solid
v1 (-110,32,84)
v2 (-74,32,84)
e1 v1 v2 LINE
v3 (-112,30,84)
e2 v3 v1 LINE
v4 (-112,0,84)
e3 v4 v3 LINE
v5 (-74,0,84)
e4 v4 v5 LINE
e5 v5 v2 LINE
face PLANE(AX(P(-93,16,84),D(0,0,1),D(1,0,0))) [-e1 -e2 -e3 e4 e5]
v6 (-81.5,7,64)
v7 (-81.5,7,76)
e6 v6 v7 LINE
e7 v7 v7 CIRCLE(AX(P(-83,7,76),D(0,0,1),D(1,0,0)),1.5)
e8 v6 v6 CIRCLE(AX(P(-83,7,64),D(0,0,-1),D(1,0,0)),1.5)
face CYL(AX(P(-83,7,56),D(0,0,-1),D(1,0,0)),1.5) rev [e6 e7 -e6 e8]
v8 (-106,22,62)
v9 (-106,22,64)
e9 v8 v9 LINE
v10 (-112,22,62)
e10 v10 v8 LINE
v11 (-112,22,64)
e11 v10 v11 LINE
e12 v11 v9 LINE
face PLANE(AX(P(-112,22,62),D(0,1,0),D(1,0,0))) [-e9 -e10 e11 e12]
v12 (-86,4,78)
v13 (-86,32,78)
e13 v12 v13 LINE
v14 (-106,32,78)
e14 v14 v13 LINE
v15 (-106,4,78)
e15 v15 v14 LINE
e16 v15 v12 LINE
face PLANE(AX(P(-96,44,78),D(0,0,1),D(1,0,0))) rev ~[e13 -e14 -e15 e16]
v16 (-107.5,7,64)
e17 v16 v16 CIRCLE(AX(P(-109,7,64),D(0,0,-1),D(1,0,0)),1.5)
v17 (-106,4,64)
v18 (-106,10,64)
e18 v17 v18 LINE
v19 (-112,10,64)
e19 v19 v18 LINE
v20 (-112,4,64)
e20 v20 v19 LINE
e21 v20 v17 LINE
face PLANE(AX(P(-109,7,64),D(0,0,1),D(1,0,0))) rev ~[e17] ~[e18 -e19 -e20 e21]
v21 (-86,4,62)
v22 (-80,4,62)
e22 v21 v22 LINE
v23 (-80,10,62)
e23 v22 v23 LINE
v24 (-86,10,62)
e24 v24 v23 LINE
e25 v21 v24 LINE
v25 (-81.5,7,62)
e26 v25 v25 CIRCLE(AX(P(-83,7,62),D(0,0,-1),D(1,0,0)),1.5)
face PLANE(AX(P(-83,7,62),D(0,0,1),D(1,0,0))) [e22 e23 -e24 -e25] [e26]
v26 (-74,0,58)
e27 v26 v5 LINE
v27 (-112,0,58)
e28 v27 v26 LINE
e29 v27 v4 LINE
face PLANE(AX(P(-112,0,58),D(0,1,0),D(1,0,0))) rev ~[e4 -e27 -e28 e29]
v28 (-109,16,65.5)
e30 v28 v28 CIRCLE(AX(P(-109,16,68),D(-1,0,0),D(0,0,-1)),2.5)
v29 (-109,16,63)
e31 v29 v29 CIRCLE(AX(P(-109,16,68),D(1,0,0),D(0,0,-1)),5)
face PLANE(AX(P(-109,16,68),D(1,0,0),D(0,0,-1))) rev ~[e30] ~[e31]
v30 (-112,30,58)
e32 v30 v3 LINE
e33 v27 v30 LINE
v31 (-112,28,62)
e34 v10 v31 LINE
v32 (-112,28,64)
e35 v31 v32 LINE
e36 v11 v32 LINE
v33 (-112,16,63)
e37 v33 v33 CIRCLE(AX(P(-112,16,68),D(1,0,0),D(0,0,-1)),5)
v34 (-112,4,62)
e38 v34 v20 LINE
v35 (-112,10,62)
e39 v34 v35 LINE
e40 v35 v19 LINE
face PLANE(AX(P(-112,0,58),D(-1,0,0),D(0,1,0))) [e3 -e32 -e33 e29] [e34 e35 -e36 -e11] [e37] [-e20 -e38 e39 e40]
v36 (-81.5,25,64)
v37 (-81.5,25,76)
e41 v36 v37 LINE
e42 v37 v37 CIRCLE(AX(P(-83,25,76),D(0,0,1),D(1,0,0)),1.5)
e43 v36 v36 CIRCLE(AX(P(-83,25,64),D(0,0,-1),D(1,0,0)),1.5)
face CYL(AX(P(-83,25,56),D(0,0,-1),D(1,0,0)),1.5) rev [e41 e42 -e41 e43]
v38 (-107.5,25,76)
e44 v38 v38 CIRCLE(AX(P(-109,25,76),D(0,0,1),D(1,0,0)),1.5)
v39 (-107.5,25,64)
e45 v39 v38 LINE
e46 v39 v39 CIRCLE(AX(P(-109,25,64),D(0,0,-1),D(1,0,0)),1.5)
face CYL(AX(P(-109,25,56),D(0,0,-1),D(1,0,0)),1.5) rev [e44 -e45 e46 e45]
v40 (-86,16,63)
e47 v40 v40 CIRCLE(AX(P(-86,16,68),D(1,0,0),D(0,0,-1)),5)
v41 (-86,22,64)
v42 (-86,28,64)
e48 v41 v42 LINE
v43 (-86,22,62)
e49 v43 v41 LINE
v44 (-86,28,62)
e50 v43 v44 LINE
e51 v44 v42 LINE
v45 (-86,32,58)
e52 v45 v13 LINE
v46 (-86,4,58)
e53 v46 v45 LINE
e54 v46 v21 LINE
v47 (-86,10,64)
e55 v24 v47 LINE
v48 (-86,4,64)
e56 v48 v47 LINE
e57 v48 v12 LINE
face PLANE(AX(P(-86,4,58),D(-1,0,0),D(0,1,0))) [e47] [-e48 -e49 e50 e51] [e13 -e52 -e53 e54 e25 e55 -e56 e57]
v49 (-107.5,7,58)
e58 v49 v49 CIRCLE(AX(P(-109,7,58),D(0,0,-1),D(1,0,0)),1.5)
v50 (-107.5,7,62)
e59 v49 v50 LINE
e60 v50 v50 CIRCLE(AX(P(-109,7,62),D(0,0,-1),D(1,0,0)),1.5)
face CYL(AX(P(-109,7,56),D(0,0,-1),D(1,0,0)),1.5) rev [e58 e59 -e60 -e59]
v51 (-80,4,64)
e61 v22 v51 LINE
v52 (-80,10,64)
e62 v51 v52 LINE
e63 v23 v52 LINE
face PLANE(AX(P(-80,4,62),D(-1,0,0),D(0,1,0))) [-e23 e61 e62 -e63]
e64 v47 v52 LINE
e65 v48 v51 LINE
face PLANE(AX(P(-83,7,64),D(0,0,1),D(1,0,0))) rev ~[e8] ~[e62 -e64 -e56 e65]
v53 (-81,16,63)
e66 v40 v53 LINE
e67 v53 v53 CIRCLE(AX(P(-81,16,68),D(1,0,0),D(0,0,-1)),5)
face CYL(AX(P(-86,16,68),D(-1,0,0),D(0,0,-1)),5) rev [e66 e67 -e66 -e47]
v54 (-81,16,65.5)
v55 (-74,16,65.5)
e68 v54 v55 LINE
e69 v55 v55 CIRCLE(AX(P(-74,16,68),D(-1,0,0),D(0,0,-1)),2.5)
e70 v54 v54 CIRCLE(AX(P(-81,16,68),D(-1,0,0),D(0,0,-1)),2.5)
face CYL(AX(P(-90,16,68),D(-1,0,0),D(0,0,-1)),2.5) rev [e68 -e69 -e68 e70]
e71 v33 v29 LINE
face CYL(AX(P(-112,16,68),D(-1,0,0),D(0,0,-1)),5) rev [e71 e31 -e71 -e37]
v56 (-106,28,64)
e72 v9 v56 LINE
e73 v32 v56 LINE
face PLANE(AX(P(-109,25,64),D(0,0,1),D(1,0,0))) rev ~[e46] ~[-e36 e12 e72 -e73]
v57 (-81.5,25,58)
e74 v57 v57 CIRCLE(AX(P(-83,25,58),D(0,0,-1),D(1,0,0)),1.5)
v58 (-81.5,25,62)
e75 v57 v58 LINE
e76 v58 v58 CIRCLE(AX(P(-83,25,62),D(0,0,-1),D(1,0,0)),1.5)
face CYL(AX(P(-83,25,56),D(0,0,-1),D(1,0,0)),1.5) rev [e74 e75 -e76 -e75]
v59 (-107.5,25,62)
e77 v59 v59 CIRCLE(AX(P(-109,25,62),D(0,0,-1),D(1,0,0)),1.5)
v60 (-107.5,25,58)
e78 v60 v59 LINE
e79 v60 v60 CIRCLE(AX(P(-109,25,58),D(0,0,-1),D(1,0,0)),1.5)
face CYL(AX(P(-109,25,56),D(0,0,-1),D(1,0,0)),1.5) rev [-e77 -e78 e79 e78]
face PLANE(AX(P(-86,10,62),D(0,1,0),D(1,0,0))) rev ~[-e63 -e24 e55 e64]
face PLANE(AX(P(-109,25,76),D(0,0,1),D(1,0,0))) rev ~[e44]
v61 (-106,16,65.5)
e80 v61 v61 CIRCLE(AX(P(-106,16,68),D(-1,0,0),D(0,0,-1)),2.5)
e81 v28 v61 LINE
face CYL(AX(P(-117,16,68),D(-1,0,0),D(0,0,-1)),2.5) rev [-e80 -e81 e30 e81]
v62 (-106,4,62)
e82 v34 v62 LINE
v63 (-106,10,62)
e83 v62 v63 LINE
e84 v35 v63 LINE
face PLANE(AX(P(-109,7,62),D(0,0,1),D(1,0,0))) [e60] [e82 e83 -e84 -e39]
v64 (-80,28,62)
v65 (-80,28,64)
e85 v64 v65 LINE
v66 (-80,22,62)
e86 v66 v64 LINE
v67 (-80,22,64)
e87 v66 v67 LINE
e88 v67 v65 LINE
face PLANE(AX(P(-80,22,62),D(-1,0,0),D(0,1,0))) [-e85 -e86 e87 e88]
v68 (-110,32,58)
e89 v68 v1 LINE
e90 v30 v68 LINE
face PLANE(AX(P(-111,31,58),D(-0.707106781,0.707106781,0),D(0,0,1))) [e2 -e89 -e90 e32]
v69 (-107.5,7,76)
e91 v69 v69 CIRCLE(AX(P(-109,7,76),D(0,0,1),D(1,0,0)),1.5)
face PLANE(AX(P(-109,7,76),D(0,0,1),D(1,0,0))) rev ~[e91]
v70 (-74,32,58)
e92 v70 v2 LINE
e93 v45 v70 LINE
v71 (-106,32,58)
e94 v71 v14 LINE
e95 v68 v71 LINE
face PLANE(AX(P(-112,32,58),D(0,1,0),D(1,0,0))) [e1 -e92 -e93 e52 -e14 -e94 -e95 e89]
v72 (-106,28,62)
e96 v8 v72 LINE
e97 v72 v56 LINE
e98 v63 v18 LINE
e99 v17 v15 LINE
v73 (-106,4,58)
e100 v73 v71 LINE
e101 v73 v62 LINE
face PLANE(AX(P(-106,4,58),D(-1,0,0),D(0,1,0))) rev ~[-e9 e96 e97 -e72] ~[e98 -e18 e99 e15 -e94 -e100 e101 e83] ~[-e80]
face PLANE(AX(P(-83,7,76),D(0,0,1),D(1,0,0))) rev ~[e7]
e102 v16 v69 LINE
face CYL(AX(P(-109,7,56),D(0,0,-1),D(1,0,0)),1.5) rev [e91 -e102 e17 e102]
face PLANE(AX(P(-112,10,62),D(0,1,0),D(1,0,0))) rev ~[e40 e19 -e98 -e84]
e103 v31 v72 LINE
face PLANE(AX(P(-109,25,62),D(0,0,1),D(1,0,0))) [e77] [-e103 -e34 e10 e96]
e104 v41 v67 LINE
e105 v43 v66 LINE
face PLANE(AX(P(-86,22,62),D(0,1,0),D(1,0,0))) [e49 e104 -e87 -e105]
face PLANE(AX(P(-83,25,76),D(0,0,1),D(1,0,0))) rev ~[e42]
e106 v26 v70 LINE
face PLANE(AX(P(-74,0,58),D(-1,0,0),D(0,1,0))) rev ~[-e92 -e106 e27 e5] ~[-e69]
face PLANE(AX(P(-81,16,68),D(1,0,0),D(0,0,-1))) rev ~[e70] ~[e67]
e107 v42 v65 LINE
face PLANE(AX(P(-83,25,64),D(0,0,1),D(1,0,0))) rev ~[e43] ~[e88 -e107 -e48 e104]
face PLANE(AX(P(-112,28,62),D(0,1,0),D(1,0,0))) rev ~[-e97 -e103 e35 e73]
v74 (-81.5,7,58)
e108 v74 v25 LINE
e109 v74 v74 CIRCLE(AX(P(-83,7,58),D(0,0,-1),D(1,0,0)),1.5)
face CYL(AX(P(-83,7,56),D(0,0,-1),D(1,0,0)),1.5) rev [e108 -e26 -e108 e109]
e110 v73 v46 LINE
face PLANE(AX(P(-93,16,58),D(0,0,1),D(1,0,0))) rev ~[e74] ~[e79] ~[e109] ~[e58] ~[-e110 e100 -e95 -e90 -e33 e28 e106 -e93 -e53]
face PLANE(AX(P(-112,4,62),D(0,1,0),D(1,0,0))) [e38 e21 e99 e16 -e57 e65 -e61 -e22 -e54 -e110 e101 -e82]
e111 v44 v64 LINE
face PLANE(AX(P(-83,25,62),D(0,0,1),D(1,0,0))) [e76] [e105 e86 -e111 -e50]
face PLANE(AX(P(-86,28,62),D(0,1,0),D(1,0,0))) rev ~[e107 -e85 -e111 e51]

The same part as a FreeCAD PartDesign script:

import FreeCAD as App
import Part
import Sketcher
Q = App.Units.Quantity


def edges_at(feature, points):
    """Names of the edges that pass closest to the given points."""
    edges = feature.Shape.Edges
    near = lambda p: min(range(len(edges)), key=lambda i: edges[i].distToShape(Part.Vertex(*p))[0])
    return sorted({f"Edge{near(p) + 1}" for p in points})

doc = App.newDocument("Part")
body = doc.addObject("PartDesign::Body", "Body")

sketch1 = body.newObject("Sketcher::SketchObject", "Sketch")
sketch1.AttachmentSupport = (doc.getObject("YZ_Plane"), [""])
sketch1.MapMode = "FlatFace"
sketch1.AttachmentOffset = App.Placement(App.Vector(0, 0, -86), App.Rotation())
sketch1.addGeometry(Part.Circle(App.Vector(16, 68, 0), App.Vector(0, 0, 1), 5), False)
sketch1.addConstraint([
    Sketcher.Constraint("Diameter", 0, Q("10 mm")),
    Sketcher.Constraint("DistanceX", -1, 1, 0, 3, Q("16 mm")),
    Sketcher.Constraint("DistanceY", -1, 1, 0, 3, Q("68 mm")),
])
pad1 = body.newObject("PartDesign::Pad", "Pad")
pad1.Profile = sketch1
pad1.Length = 5
body2 = doc.addObject("PartDesign::Body", "Body001")

sketch2 = body2.newObject("Sketcher::SketchObject", "Sketch001")
sketch2.AttachmentSupport = (doc.getObject("YZ_Plane001"), [""])
sketch2.MapMode = "FlatFace"
sketch2.AttachmentOffset = App.Placement(App.Vector(0, 0, -90), App.Rotation())
sketch2.addGeometry(Part.Circle(App.Vector(16, 68, 0), App.Vector(0, 0, 1), 2.5), False)
sketch2.addConstraint([
    Sketcher.Constraint("Diameter", 0, Q("5 mm")),
    Sketcher.Constraint("DistanceX", -1, 1, 0, 3, Q("16 mm")),
    Sketcher.Constraint("DistanceY", -1, 1, 0, 3, Q("68 mm")),
])
pad2 = body2.newObject("PartDesign::Pad", "Pad001")
pad2.Profile = sketch2
pad2.Length = 40
body3 = doc.addObject("PartDesign::Body", "Body002")

sketch3 = body3.newObject("Sketcher::SketchObject", "Sketch002")
sketch3.AttachmentSupport = (doc.getObject("YZ_Plane002"), [""])
sketch3.MapMode = "FlatFace"
sketch3.AttachmentOffset = App.Placement(App.Vector(0, 0, -112), App.Rotation())
sketch3.addGeometry(Part.Circle(App.Vector(16, 66, 0), App.Vector(0, 0, 1), 5), False)
sketch3.addConstraint([
    Sketcher.Constraint("Diameter", 0, Q("10 mm")),
    Sketcher.Constraint("DistanceX", -1, 1, 0, 3, Q("16 mm")),
    Sketcher.Constraint("DistanceY", -1, 1, 0, 3, Q("66 mm")),
])
pad3 = body3.newObject("PartDesign::Pad", "Pad002")
pad3.Profile = sketch3
pad3.Length = 3
body4 = doc.addObject("PartDesign::Body", "Body003")

sketch4 = body4.newObject("Sketcher::SketchObject", "Sketch003")
sketch4.AttachmentSupport = (doc.getObject("YZ_Plane003"), [""])
sketch4.MapMode = "FlatFace"
sketch4.AttachmentOffset = App.Placement(App.Vector(0, 0, -117), App.Rotation())
sketch4.addGeometry(Part.Circle(App.Vector(16, 66, 0), App.Vector(0, 0, 1), 2.5), False)
sketch4.addConstraint([
    Sketcher.Constraint("Diameter", 0, Q("5 mm")),
    Sketcher.Constraint("DistanceX", -1, 1, 0, 3, Q("16 mm")),
    Sketcher.Constraint("DistanceY", -1, 1, 0, 3, Q("66 mm")),
])
pad4 = body4.newObject("PartDesign::Pad", "Pad003")
pad4.Profile = sketch4
pad4.Length = 20
body5 = doc.addObject("PartDesign::Body", "Body004")

sketch5 = body5.newObject("Sketcher::SketchObject", "Sketch004")
sketch5.AttachmentSupport = (doc.getObject("XY_Plane004"), [""])
sketch5.MapMode = "FlatFace"
sketch5.AttachmentOffset = App.Placement(App.Vector(0, 0, 54), App.Rotation())
sketch5.addGeometry(Part.Circle(App.Vector(-83, 25, 0), App.Vector(0, 0, 1), 1.5), False)
sketch5.addConstraint([
    Sketcher.Constraint("Diameter", 0, Q("3 mm")),
    Sketcher.Constraint("DistanceX", 0, 3, -1, 1, Q("83 mm")),
    Sketcher.Constraint("DistanceY", -1, 1, 0, 3, Q("25 mm")),
])
pad5 = body5.newObject("PartDesign::Pad", "Pad004")
pad5.Profile = sketch5
pad5.Length = 20
body6 = doc.addObject("PartDesign::Body", "Body005")

sketch6 = body6.newObject("Sketcher::SketchObject", "Sketch005")
sketch6.AttachmentSupport = (doc.getObject("XY_Plane005"), [""])
sketch6.MapMode = "FlatFace"
sketch6.AttachmentOffset = App.Placement(App.Vector(0, 0, 54), App.Rotation())
sketch6.addGeometry(Part.Circle(App.Vector(-109, 7, 0), App.Vector(0, 0, 1), 1.5), False)
sketch6.addConstraint([
    Sketcher.Constraint("Diameter", 0, Q("3 mm")),
    Sketcher.Constraint("DistanceX", 0, 3, -1, 1, Q("109 mm")),
    Sketcher.Constraint("DistanceY", -1, 1, 0, 3, Q("7 mm")),
])
pad6 = body6.newObject("PartDesign::Pad", "Pad005")
pad6.Profile = sketch6
pad6.Length = 20
body7 = doc.addObject("PartDesign::Body", "Body006")

sketch7 = body7.newObject("Sketcher::SketchObject", "Sketch006")
sketch7.AttachmentSupport = (doc.getObject("XY_Plane006"), [""])
sketch7.MapMode = "FlatFace"
sketch7.AttachmentOffset = App.Placement(App.Vector(0, 0, 54), App.Rotation())
sketch7.addGeometry(Part.Circle(App.Vector(-109, 25, 0), App.Vector(0, 0, 1), 1.5), False)
sketch7.addConstraint([
    Sketcher.Constraint("Diameter", 0, Q("3 mm")),
    Sketcher.Constraint("DistanceX", 0, 3, -1, 1, Q("109 mm")),
    Sketcher.Constraint("DistanceY", -1, 1, 0, 3, Q("25 mm")),
])
pad7 = body7.newObject("PartDesign::Pad", "Pad006")
pad7.Profile = sketch7
pad7.Length = 20
body8 = doc.addObject("PartDesign::Body", "Body007")
body8.AllowCompound = True

sketch8 = body8.newObject("Sketcher::SketchObject", "Sketch007")
sketch8.AttachmentSupport = (doc.getObject("XY_Plane007"), [""])
sketch8.MapMode = "FlatFace"
sketch8.AttachmentOffset = App.Placement(App.Vector(0, 0, 54), App.Rotation())
sketch8.addGeometry(Part.Circle(App.Vector(-83, 7, 0), App.Vector(0, 0, 1), 1.5), False)
sketch8.addConstraint([
    Sketcher.Constraint("Diameter", 0, Q("3 mm")),
    Sketcher.Constraint("DistanceX", 0, 3, -1, 1, Q("83 mm")),
    Sketcher.Constraint("DistanceY", -1, 1, 0, 3, Q("7 mm")),
])
pad8 = body8.newObject("PartDesign::Pad", "Pad007")
pad8.Profile = sketch8
pad8.Length = 20
doc.recompute()

boolean = body8.newObject("PartDesign::Boolean", "Boolean")
boolean.Type = "Fuse"
boolean.addObjects([body5])
doc.recompute()

boolean2 = body8.newObject("PartDesign::Boolean", "Boolean001")
boolean2.Type = "Fuse"
boolean2.addObjects([body6])
doc.recompute()

boolean3 = body8.newObject("PartDesign::Boolean", "Boolean002")
boolean3.Type = "Fuse"
boolean3.addObjects([body7])
body9 = doc.addObject("PartDesign::Body", "Body008")

sketch9 = body9.newObject("Sketcher::SketchObject", "Sketch008")
sketch9.AttachmentSupport = (doc.getObject("XY_Plane008"), [""])
sketch9.MapMode = "FlatFace"
sketch9.AttachmentOffset = App.Placement(App.Vector(0, 0, 60), App.Rotation())
sketch9.addGeometry([
    Part.LineSegment(App.Vector(-112, 28, 0), App.Vector(-112, 22, 0)),
    Part.LineSegment(App.Vector(-112, 22, 0), App.Vector(-106, 22, 0)),
    Part.LineSegment(App.Vector(-106, 22, 0), App.Vector(-106, 28, 0)),
    Part.LineSegment(App.Vector(-106, 28, 0), App.Vector(-112, 28, 0)),
], False)
sketch9.addConstraint([
    Sketcher.Constraint("Coincident", 0, 2, 1, 1),
    Sketcher.Constraint("Coincident", 1, 2, 2, 1),
    Sketcher.Constraint("Coincident", 2, 2, 3, 1),
    Sketcher.Constraint("Coincident", 3, 2, 0, 1),
    Sketcher.Constraint("Vertical", 0),
    Sketcher.Constraint("Horizontal", 1),
    Sketcher.Constraint("Vertical", 2),
    Sketcher.Constraint("Horizontal", 3),
    Sketcher.Constraint("Equal", 3, 0),
    Sketcher.Constraint("DistanceX", 1, 1, 1, 2, Q("6 mm")),
    Sketcher.Constraint("DistanceX", 0, 2, -1, 1, Q("112 mm")),
    Sketcher.Constraint("DistanceY", -1, 1, 0, 2, Q("22 mm")),
])
pad9 = body9.newObject("PartDesign::Pad", "Pad008")
pad9.Profile = sketch9
pad9.Length = 2
body10 = doc.addObject("PartDesign::Body", "Body009")

sketch10 = body10.newObject("Sketcher::SketchObject", "Sketch009")
sketch10.AttachmentSupport = (doc.getObject("XY_Plane009"), [""])
sketch10.MapMode = "FlatFace"
sketch10.AttachmentOffset = App.Placement(App.Vector(0, 0, 60), App.Rotation())
sketch10.addGeometry([
    Part.LineSegment(App.Vector(-86, 10, 0), App.Vector(-86, 4, 0)),
    Part.LineSegment(App.Vector(-86, 4, 0), App.Vector(-80, 4, 0)),
    Part.LineSegment(App.Vector(-80, 4, 0), App.Vector(-80, 10, 0)),
    Part.LineSegment(App.Vector(-80, 10, 0), App.Vector(-86, 10, 0)),
], False)
sketch10.addConstraint([
    Sketcher.Constraint("Coincident", 0, 2, 1, 1),
    Sketcher.Constraint("Coincident", 1, 2, 2, 1),
    Sketcher.Constraint("Coincident", 2, 2, 3, 1),
    Sketcher.Constraint("Coincident", 3, 2, 0, 1),
    Sketcher.Constraint("Vertical", 0),
    Sketcher.Constraint("Horizontal", 1),
    Sketcher.Constraint("Vertical", 2),
    Sketcher.Constraint("Horizontal", 3),
    Sketcher.Constraint("Equal", 3, 0),
    Sketcher.Constraint("DistanceX", 1, 1, 1, 2, Q("6 mm")),
    Sketcher.Constraint("DistanceX", 0, 2, -1, 1, Q("86 mm")),
    Sketcher.Constraint("DistanceY", -1, 1, 0, 2, Q("4 mm")),
])
pad10 = body10.newObject("PartDesign::Pad", "Pad009")
pad10.Profile = sketch10
pad10.Length = 2
body11 = doc.addObject("PartDesign::Body", "Body010")

sketch11 = body11.newObject("Sketcher::SketchObject", "Sketch010")
sketch11.AttachmentSupport = (doc.getObject("XY_Plane010"), [""])
sketch11.MapMode = "FlatFace"
sketch11.AttachmentOffset = App.Placement(App.Vector(0, 0, 60), App.Rotation())
sketch11.addGeometry([
    Part.LineSegment(App.Vector(-86, 28, 0), App.Vector(-86, 22, 0)),
    Part.LineSegment(App.Vector(-86, 22, 0), App.Vector(-80, 22, 0)),
    Part.LineSegment(App.Vector(-80, 22, 0), App.Vector(-80, 28, 0)),
    Part.LineSegment(App.Vector(-80, 28, 0), App.Vector(-86, 28, 0)),
], False)
sketch11.addConstraint([
    Sketcher.Constraint("Coincident", 0, 2, 1, 1),
    Sketcher.Constraint("Coincident", 1, 2, 2, 1),
    Sketcher.Constraint("Coincident", 2, 2, 3, 1),
    Sketcher.Constraint("Coincident", 3, 2, 0, 1),
    Sketcher.Constraint("Vertical", 0),
    Sketcher.Constraint("Horizontal", 1),
    Sketcher.Constraint("Vertical", 2),
    Sketcher.Constraint("Horizontal", 3),
    Sketcher.Constraint("Equal", 3, 0),
    Sketcher.Constraint("DistanceX", 1, 1, 1, 2, Q("6 mm")),
    Sketcher.Constraint("DistanceX", 0, 2, -1, 1, Q("86 mm")),
    Sketcher.Constraint("DistanceY", -1, 1, 0, 2, Q("22 mm")),
])
pad11 = body11.newObject("PartDesign::Pad", "Pad010")
pad11.Profile = sketch11
pad11.Length = 2
body12 = doc.addObject("PartDesign::Body", "Body011")
body12.AllowCompound = True

sketch12 = body12.newObject("Sketcher::SketchObject", "Sketch011")
sketch12.AttachmentSupport = (doc.getObject("XY_Plane011"), [""])
sketch12.MapMode = "FlatFace"
sketch12.AttachmentOffset = App.Placement(App.Vector(0, 0, 60), App.Rotation())
sketch12.addGeometry([
    Part.LineSegment(App.Vector(-112, 10, 0), App.Vector(-112, 4, 0)),
    Part.LineSegment(App.Vector(-112, 4, 0), App.Vector(-106, 4, 0)),
    Part.LineSegment(App.Vector(-106, 4, 0), App.Vector(-106, 10, 0)),
    Part.LineSegment(App.Vector(-106, 10, 0), App.Vector(-112, 10, 0)),
], False)
sketch12.addConstraint([
    Sketcher.Constraint("Coincident", 0, 2, 1, 1),
    Sketcher.Constraint("Coincident", 1, 2, 2, 1),
    Sketcher.Constraint("Coincident", 2, 2, 3, 1),
    Sketcher.Constraint("Coincident", 3, 2, 0, 1),
    Sketcher.Constraint("Vertical", 0),
    Sketcher.Constraint("Horizontal", 1),
    Sketcher.Constraint("Vertical", 2),
    Sketcher.Constraint("Horizontal", 3),
    Sketcher.Constraint("Equal", 3, 0),
    Sketcher.Constraint("DistanceX", 1, 1, 1, 2, Q("6 mm")),
    Sketcher.Constraint("DistanceX", 0, 2, -1, 1, Q("112 mm")),
    Sketcher.Constraint("DistanceY", -1, 1, 0, 2, Q("4 mm")),
])
pad12 = body12.newObject("PartDesign::Pad", "Pad011")
pad12.Profile = sketch12
pad12.Length = 2
doc.recompute()

boolean4 = body12.newObject("PartDesign::Boolean", "Boolean003")
boolean4.Type = "Fuse"
boolean4.addObjects([body9])
doc.recompute()

boolean5 = body12.newObject("PartDesign::Boolean", "Boolean004")
boolean5.Type = "Fuse"
boolean5.addObjects([body10])
doc.recompute()

boolean6 = body12.newObject("PartDesign::Boolean", "Boolean005")
boolean6.Type = "Fuse"
boolean6.addObjects([body11])
body13 = doc.addObject("PartDesign::Body", "Body012")

sketch13 = body13.newObject("Sketcher::SketchObject", "Sketch012")
sketch13.AttachmentSupport = (doc.getObject("XY_Plane012"), [""])
sketch13.MapMode = "FlatFace"
sketch13.AttachmentOffset = App.Placement(App.Vector(0, 0, 56), App.Rotation())
sketch13.addGeometry([
    Part.LineSegment(App.Vector(-106, 84, 0), App.Vector(-106, 4, 0)),
    Part.LineSegment(App.Vector(-106, 4, 0), App.Vector(-86, 4, 0)),
    Part.LineSegment(App.Vector(-86, 4, 0), App.Vector(-86, 84, 0)),
    Part.LineSegment(App.Vector(-86, 84, 0), App.Vector(-106, 84, 0)),
], False)
sketch13.addConstraint([
    Sketcher.Constraint("Coincident", 0, 2, 1, 1),
    Sketcher.Constraint("Coincident", 1, 2, 2, 1),
    Sketcher.Constraint("Coincident", 2, 2, 3, 1),
    Sketcher.Constraint("Coincident", 3, 2, 0, 1),
    Sketcher.Constraint("Vertical", 0),
    Sketcher.Constraint("Horizontal", 1),
    Sketcher.Constraint("Vertical", 2),
    Sketcher.Constraint("Horizontal", 3),
    Sketcher.Constraint("DistanceX", 1, 1, 1, 2, Q("20 mm")),
    Sketcher.Constraint("DistanceY", 0, 2, 0, 1, Q("80 mm")),
    Sketcher.Constraint("DistanceX", 0, 2, -1, 1, Q("106 mm")),
    Sketcher.Constraint("DistanceY", -1, 1, 0, 2, Q("4 mm")),
])
pad13 = body13.newObject("PartDesign::Pad", "Pad012")
pad13.Profile = sketch13
pad13.Length = 20
body14 = doc.addObject("PartDesign::Body", "Body013")

sketch14 = body14.newObject("Sketcher::SketchObject", "Sketch013")
sketch14.AttachmentSupport = (doc.getObject("XY_Plane013"), [""])
sketch14.MapMode = "FlatFace"
sketch14.AttachmentOffset = App.Placement(App.Vector(0, 0, 56), App.Rotation())
sketch14.addGeometry([
    Part.LineSegment(App.Vector(-112, 32, 0), App.Vector(-112, 0, 0)),
    Part.LineSegment(App.Vector(-112, 0, 0), App.Vector(-74, 0, 0)),
    Part.LineSegment(App.Vector(-74, 0, 0), App.Vector(-74, 32, 0)),
    Part.LineSegment(App.Vector(-74, 32, 0), App.Vector(-112, 32, 0)),
], False)
sketch14.addConstraint([
    Sketcher.Constraint("Coincident", 0, 2, 1, 1),
    Sketcher.Constraint("Coincident", 1, 2, 2, 1),
    Sketcher.Constraint("Coincident", 2, 2, 3, 1),
    Sketcher.Constraint("Coincident", 3, 2, 0, 1),
    Sketcher.Constraint("Vertical", 0),
    Sketcher.Constraint("Horizontal", 1),
    Sketcher.Constraint("Vertical", 2),
    Sketcher.Constraint("Horizontal", 3),
    Sketcher.Constraint("PointOnObject", 0, 2, -1),
    Sketcher.Constraint("DistanceX", 1, 1, 1, 2, Q("38 mm")),
    Sketcher.Constraint("DistanceY", 0, 2, 0, 1, Q("32 mm")),
    Sketcher.Constraint("DistanceX", 0, 2, -1, 1, Q("112 mm")),
])
pad14 = body14.newObject("PartDesign::Pad", "Pad013")
pad14.Profile = sketch14
pad14.Length = 26
doc.recompute()

boolean7 = body14.newObject("PartDesign::Boolean", "Boolean006")
boolean7.Type = "Cut"
boolean7.addObjects([body13])
doc.recompute()

boolean8 = body14.newObject("PartDesign::Boolean", "Boolean007")
boolean8.Type = "Cut"
boolean8.addObjects([body12])
doc.recompute()

boolean9 = body14.newObject("PartDesign::Boolean", "Boolean008")
boolean9.Type = "Cut"
boolean9.addObjects([body8])
doc.recompute()

boolean10 = body14.newObject("PartDesign::Boolean", "Boolean009")
boolean10.Type = "Cut"
boolean10.addObjects([body4])
doc.recompute()

boolean11 = body14.newObject("PartDesign::Boolean", "Boolean010")
boolean11.Type = "Cut"
boolean11.addObjects([body3])
doc.recompute()

chamfer = body14.newObject("PartDesign::Chamfer", "Chamfer")
chamfer.Base = (boolean11, edges_at(boolean11, [(-112, 32, 69)]))
chamfer.Size = 2
body15 = doc.addObject("PartDesign::Body", "Body014")
doc.recompute()

body14.Placement = App.Placement(App.Vector(0, 0, 2), App.Rotation(App.Vector(0, 0, 1), 0))
boolean12 = body15.newObject("PartDesign::Boolean", "Boolean011")
boolean12.Type = "Fuse"
boolean12.addObjects([body14])
doc.recompute()

boolean13 = body15.newObject("PartDesign::Boolean", "Boolean012")
boolean13.Type = "Cut"
boolean13.addObjects([body2])
doc.recompute()

boolean14 = body15.newObject("PartDesign::Boolean", "Boolean013")
boolean14.Type = "Cut"
boolean14.addObjects([body])

doc.recompute()
